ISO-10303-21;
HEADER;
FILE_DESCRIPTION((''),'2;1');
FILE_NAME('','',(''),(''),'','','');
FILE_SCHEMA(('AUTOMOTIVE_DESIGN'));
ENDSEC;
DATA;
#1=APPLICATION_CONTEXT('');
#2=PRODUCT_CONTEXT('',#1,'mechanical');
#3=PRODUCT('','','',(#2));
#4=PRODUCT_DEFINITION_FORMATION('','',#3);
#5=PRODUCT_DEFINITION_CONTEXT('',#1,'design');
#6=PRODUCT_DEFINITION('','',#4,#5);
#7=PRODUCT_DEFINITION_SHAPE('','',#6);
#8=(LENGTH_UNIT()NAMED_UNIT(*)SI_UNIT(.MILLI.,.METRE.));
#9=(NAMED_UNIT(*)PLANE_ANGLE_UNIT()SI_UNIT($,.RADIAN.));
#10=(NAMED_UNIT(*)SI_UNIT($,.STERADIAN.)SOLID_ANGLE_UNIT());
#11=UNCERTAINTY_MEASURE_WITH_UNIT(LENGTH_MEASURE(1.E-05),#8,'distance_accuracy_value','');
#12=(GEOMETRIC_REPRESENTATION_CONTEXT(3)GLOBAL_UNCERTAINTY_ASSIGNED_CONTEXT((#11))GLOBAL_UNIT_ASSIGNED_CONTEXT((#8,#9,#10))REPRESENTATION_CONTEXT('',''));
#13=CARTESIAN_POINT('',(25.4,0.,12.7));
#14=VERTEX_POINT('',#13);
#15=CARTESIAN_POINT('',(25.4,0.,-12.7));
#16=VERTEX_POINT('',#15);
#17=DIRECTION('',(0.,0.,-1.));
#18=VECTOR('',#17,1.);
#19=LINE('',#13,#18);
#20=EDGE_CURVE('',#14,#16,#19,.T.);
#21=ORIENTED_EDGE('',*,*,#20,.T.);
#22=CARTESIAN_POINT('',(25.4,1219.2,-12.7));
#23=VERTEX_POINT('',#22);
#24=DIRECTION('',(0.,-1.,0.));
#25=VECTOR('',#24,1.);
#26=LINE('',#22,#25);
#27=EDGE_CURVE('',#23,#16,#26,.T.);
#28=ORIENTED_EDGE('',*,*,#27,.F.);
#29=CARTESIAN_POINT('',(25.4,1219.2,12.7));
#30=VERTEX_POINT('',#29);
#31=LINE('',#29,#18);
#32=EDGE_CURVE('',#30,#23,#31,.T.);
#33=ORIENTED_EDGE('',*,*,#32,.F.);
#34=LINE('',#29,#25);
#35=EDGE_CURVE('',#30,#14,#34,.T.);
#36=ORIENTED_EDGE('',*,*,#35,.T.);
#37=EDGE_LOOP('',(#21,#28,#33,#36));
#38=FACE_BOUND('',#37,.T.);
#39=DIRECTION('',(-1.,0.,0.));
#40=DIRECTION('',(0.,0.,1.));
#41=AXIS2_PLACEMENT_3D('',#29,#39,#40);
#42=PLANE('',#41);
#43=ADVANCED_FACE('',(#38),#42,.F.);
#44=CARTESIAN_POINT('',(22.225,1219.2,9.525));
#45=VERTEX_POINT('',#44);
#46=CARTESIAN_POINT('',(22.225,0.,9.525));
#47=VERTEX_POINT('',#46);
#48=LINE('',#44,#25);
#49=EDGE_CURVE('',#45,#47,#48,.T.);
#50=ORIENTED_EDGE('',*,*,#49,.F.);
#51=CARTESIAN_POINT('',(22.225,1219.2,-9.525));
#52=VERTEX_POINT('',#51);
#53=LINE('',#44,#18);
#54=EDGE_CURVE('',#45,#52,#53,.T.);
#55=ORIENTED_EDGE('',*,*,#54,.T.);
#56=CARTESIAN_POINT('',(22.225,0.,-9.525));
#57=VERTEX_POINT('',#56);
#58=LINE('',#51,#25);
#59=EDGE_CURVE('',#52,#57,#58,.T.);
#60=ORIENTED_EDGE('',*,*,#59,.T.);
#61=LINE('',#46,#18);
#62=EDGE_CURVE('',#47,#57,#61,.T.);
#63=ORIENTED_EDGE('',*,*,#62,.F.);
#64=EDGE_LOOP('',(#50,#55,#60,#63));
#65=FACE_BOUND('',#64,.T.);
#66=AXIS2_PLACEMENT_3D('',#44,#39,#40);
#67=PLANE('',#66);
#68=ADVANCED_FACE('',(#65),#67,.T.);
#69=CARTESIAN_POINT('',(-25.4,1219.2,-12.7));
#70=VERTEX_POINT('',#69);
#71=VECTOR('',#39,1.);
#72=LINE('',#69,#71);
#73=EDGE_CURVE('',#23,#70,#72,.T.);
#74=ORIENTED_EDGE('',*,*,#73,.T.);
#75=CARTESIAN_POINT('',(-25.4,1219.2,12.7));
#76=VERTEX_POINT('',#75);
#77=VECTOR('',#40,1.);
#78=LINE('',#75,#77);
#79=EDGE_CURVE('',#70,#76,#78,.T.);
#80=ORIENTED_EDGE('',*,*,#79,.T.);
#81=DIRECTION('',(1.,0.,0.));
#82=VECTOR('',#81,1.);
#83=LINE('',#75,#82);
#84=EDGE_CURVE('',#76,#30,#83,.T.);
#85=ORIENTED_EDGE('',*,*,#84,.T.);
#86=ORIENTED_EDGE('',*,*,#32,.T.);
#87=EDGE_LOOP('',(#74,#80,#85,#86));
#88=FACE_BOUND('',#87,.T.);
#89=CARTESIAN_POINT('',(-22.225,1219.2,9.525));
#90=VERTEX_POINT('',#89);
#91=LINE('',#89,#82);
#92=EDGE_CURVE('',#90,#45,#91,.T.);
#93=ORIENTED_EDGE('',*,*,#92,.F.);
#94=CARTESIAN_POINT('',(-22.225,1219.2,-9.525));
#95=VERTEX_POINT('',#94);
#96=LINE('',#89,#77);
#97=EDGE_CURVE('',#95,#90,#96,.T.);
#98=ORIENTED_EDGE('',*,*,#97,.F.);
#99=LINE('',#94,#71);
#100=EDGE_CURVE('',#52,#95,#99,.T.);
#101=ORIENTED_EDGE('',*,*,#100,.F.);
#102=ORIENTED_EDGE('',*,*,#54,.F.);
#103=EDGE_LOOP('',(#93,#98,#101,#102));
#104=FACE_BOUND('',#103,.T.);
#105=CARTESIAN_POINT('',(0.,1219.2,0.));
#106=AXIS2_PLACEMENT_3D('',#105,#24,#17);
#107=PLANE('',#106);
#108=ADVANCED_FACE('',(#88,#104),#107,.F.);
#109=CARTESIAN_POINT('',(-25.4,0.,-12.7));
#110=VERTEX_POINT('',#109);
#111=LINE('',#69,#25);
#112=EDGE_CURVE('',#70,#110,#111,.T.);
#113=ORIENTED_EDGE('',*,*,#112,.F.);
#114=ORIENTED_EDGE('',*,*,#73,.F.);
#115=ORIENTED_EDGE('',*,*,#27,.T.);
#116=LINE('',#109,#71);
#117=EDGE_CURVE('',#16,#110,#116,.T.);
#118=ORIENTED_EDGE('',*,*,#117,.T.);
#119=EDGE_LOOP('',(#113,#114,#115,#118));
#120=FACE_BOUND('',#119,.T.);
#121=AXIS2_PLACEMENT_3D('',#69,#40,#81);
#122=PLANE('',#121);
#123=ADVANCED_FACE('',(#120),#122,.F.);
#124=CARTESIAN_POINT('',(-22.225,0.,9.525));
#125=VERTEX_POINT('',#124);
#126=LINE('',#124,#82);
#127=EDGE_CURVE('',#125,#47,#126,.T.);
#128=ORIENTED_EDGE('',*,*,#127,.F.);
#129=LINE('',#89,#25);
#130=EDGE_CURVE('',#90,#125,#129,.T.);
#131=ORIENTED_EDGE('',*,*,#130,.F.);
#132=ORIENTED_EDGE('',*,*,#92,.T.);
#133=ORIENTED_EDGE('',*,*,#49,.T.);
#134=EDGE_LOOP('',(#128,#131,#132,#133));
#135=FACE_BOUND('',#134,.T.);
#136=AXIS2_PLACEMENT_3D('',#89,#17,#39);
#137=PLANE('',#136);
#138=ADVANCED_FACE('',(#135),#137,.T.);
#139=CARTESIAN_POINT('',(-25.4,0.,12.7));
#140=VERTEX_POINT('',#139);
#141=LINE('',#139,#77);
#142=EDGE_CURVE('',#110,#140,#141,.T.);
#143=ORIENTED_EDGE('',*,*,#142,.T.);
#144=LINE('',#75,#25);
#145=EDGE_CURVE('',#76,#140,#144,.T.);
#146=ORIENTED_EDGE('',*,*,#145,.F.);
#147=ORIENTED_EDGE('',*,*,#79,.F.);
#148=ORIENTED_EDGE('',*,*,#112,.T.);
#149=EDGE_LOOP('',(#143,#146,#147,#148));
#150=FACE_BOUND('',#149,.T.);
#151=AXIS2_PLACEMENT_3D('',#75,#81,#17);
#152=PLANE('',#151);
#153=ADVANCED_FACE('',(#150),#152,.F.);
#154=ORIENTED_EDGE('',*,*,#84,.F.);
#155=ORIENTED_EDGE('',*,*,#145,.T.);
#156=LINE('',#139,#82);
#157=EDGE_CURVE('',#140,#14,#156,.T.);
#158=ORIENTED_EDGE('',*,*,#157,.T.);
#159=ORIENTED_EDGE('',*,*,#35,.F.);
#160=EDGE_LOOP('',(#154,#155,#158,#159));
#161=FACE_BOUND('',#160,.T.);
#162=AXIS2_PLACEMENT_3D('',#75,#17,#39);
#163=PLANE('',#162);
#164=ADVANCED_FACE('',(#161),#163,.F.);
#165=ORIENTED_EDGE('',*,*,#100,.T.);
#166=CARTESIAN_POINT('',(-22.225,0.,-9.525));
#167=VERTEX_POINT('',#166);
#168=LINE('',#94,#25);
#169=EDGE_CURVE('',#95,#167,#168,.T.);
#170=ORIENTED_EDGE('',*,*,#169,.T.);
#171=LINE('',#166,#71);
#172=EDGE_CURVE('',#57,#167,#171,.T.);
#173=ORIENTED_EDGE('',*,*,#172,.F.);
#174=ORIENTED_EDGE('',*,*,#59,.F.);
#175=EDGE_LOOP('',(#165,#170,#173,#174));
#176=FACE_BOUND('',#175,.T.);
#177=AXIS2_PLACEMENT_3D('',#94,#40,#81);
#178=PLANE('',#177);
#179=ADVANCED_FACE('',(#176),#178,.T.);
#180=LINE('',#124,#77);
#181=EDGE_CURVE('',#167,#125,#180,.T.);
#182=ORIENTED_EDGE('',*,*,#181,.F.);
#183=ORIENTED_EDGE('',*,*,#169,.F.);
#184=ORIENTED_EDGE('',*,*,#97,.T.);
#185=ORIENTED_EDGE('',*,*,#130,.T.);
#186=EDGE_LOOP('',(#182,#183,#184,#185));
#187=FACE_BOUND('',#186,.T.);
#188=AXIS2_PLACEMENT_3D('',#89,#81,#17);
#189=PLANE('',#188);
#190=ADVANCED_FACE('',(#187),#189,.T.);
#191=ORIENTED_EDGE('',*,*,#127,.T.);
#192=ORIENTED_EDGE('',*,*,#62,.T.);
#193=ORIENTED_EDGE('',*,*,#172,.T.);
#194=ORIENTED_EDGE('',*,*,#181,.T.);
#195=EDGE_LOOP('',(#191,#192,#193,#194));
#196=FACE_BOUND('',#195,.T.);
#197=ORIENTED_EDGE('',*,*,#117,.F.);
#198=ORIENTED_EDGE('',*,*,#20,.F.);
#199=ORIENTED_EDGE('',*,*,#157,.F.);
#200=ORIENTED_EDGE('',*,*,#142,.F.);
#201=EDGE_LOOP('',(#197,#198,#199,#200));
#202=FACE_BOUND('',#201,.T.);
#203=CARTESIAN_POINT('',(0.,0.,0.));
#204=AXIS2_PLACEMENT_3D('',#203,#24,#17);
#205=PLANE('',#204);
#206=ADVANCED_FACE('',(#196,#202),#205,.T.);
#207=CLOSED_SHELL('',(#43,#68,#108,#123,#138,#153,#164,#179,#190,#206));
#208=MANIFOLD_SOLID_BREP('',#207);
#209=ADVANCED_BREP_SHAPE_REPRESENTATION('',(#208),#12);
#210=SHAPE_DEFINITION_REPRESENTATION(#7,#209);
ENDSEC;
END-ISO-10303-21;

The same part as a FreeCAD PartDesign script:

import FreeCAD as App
import Part
import Sketcher

V = App.Vector
Q = App.Units.Quantity


def add_polygon(sketch, points):
    """Adds a closed chain of lines whose ends are joined by coincident constraints."""
    first, n = sketch.GeometryCount, len(points)
    for a, b in zip(points, points[1:] + points[:1]):
        sketch.addGeometry(Part.LineSegment(App.Vector(*a, 0), App.Vector(*b, 0)), False)
    for i in range(n):
        sketch.addConstraint(Sketcher.Constraint("Coincident", first + i, 2, first + (i + 1) % n, 1))

doc = App.newDocument("Part")
params = doc.addObject("Spreadsheet::Sheet", "Params")
for row, (alias, value) in enumerate([
    ("sketch1_width", "2 in"),
    ("sketch1_height", "1 in"),
    ("sketch1_width2", "1.75 in"),
    ("sketch1_height2", "0.75 in"),
    ("pad1_length", "48 in"),
], start=1):
    params.set(f"A{row}", alias)
    params.set(f"B{row}", "=" + value)
    params.setAlias(f"B{row}", alias)

body = doc.addObject("PartDesign::Body", "Body")

sketch1 = body.newObject("Sketcher::SketchObject", "Sketch")
sketch1.AttachmentSupport = (doc.getObject("XZ_Plane"), [""])
sketch1.MapMode = "FlatFace"
add_polygon(sketch1, [(-25, -13), (-25, 13), (25, 13), (25, -13)])
add_polygon(sketch1, [(22, 10), (-22, 10), (-22, -10), (22, -10)])
sketch1.addConstraint(Sketcher.Constraint("Vertical", 0))
sketch1.addConstraint(Sketcher.Constraint("Horizontal", 1))
sketch1.addConstraint(Sketcher.Constraint("Vertical", 2))
sketch1.addConstraint(Sketcher.Constraint("Horizontal", 3))
sketch1.addConstraint(Sketcher.Constraint("Horizontal", 4))
sketch1.addConstraint(Sketcher.Constraint("Vertical", 5))
sketch1.addConstraint(Sketcher.Constraint("Horizontal", 6))
sketch1.addConstraint(Sketcher.Constraint("Vertical", 7))
sketch1.addConstraint(Sketcher.Constraint("Symmetric", 0, 2, 2, 2, -1, 1))
sketch1.addConstraint(Sketcher.Constraint("Symmetric", 4, 2, 6, 2, -1, 1))
sketch1.addConstraint(Sketcher.Constraint("DistanceX", 1, 1, 1, 2, Q("2 in")))
sketch1.addConstraint(Sketcher.Constraint("DistanceY", 0, 1, 0, 2, Q("1 in")))
sketch1.addConstraint(Sketcher.Constraint("DistanceX", 4, 2, 4, 1, Q("1.75 in")))
sketch1.addConstraint(Sketcher.Constraint("DistanceY", 5, 2, 5, 1, Q("0.75 in")))
sketch1.setExpression("Constraints[18]", "Params.sketch1_width")
sketch1.setExpression("Constraints[19]", "Params.sketch1_height")
sketch1.setExpression("Constraints[20]", "Params.sketch1_width2")
sketch1.setExpression("Constraints[21]", "Params.sketch1_height2")
pad1 = body.newObject("PartDesign::Pad", "Pad")
pad1.Profile = sketch1
pad1.setExpression("Length", "Params.pad1_length")
pad1.Reversed = True

doc.recompute()
